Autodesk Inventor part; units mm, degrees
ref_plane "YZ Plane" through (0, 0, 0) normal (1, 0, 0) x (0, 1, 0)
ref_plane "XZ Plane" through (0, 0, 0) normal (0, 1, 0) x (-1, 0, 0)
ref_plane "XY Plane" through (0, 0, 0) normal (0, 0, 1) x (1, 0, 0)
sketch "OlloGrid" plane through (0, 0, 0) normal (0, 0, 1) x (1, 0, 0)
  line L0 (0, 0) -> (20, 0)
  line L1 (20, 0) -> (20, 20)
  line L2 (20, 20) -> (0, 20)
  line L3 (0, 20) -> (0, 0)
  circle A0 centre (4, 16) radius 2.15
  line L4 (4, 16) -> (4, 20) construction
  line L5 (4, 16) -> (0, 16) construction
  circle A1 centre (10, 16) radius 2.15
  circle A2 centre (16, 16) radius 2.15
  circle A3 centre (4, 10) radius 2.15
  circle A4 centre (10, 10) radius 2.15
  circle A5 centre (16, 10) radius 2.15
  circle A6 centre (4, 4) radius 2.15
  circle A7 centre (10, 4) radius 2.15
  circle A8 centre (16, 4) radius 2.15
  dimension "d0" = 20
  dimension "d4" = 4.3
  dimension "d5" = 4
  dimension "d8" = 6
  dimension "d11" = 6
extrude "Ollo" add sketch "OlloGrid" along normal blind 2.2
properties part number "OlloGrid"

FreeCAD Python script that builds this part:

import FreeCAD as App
import Part
import Sketcher
from FreeCAD import Vector

doc = App.newDocument("Part")
params = doc.addObject("Spreadsheet::Sheet", "Params")
for row, (alias, value) in enumerate([
    ("sketch1_diameter", "4.3 mm"),
    ("sketch1_width", "20 mm"),
    ("pad1_length", "2.2 mm"),
], start=1):
    params.set(f"A{row}", alias)
    params.set(f"B{row}", "=" + value)
    params.setAlias(f"B{row}", alias)

body = doc.addObject("PartDesign::Body", "Body")

sketch1 = body.newObject("Sketcher::SketchObject", "Sketch")
sketch1.AttachmentSupport = (doc.getObject("XY_Plane"), [""])
sketch1.MapMode = "FlatFace"
sketch1.addGeometry([
    Part.LineSegment(Vector(0, 20, 0), Vector(0, 0, 0)),
    Part.LineSegment(Vector(0, 0, 0), Vector(20, 0, 0)),
    Part.LineSegment(Vector(20, 0, 0), Vector(20, 20, 0)),
    Part.LineSegment(Vector(20, 20, 0), Vector(0, 20, 0)),
    Part.Circle(Vector(4, 4, 0), Vector(0, 0, 1), 2.1),
    Part.Circle(Vector(10, 4, 0), Vector(0, 0, 1), 2.1),
    Part.Circle(Vector(16, 4, 0), Vector(0, 0, 1), 2.1),
    Part.Circle(Vector(4, 10, 0), Vector(0, 0, 1), 2.1),
    Part.Circle(Vector(4, 16, 0), Vector(0, 0, 1), 2.1),
    Part.Circle(Vector(10, 10, 0), Vector(0, 0, 1), 2.1),
    Part.Circle(Vector(16, 10, 0), Vector(0, 0, 1), 2.1),
    Part.Circle(Vector(10, 16, 0), Vector(0, 0, 1), 2.1),
    Part.Circle(Vector(16, 16, 0), Vector(0, 0, 1), 2.1),
], False)
sketch1.addConstraint([
    Sketcher.Constraint("Coincident", 0, 2, 1, 1),
    Sketcher.Constraint("Coincident", 1, 2, 2, 1),
    Sketcher.Constraint("Coincident", 2, 2, 3, 1),
    Sketcher.Constraint("Coincident", 3, 2, 0, 1),
    Sketcher.Constraint("Vertical", 0),
    Sketcher.Constraint("Horizontal", 1),
    Sketcher.Constraint("Vertical", 2),
    Sketcher.Constraint("Horizontal", 3),
    Sketcher.Constraint("Coincident", 0, 2, -1, 1),
    Sketcher.Constraint("Equal", 4, 5),
    Sketcher.Constraint("Equal", 5, 6),
    Sketcher.Constraint("Equal", 6, 7),
    Sketcher.Constraint("Equal", 7, 8),
    Sketcher.Constraint("Equal", 8, 9),
    Sketcher.Constraint("Equal", 9, 10),
    Sketcher.Constraint("Equal", 10, 11),
    Sketcher.Constraint("Equal", 11, 12),
    Sketcher.Constraint("Horizontal", 4, 3, 5, 3),
    Sketcher.Constraint("Horizontal", 5, 3, 6, 3),
    Sketcher.Constraint("Horizontal", 7, 3, 9, 3),
    Sketcher.Constraint("Horizontal", 9, 3, 10, 3),
    Sketcher.Constraint("Horizontal", 8, 3, 11, 3),
    Sketcher.Constraint("Horizontal", 11, 3, 12, 3),
    Sketcher.Constraint("Vertical", 4, 3, 7, 3),
    Sketcher.Constraint("Vertical", 7, 3, 8, 3),
    Sketcher.Constraint("Vertical", 5, 3, 9, 3),
    Sketcher.Constraint("Vertical", 6, 3, 10, 3),
    Sketcher.Constraint("Vertical", 9, 3, 11, 3),
    Sketcher.Constraint("Vertical", 10, 3, 12, 3),
    Sketcher.Constraint("Equal", 3, 0),
    Sketcher.Constraint("Diameter", 4, 4.3),
    Sketcher.Constraint("DistanceX", 1, 1, 1, 2, 20.0),
    Sketcher.Constraint("DistanceX", -1, 1, 4, 3, 4.0),
    Sketcher.Constraint("DistanceY", -1, 1, 4, 3, 4.0),
    Sketcher.Constraint("DistanceX", 4, 3, 5, 3, 6.0),
    Sketcher.Constraint("DistanceX", 5, 3, 6, 3, 6.0),
    Sketcher.Constraint("DistanceY", 4, 3, 7, 3, 6.0),
    Sketcher.Constraint("DistanceY", 7, 3, 8, 3, 6.0),
])
sketch1.setExpression("Constraints[30]", "Params.sketch1_diameter")
sketch1.setExpression("Constraints[31]", "Params.sketch1_width")
pad1 = body.newObject("PartDesign::Pad", "Pad")
pad1.Profile = sketch1
pad1.setExpression("Length", "Params.pad1_length")

doc.recompute()
